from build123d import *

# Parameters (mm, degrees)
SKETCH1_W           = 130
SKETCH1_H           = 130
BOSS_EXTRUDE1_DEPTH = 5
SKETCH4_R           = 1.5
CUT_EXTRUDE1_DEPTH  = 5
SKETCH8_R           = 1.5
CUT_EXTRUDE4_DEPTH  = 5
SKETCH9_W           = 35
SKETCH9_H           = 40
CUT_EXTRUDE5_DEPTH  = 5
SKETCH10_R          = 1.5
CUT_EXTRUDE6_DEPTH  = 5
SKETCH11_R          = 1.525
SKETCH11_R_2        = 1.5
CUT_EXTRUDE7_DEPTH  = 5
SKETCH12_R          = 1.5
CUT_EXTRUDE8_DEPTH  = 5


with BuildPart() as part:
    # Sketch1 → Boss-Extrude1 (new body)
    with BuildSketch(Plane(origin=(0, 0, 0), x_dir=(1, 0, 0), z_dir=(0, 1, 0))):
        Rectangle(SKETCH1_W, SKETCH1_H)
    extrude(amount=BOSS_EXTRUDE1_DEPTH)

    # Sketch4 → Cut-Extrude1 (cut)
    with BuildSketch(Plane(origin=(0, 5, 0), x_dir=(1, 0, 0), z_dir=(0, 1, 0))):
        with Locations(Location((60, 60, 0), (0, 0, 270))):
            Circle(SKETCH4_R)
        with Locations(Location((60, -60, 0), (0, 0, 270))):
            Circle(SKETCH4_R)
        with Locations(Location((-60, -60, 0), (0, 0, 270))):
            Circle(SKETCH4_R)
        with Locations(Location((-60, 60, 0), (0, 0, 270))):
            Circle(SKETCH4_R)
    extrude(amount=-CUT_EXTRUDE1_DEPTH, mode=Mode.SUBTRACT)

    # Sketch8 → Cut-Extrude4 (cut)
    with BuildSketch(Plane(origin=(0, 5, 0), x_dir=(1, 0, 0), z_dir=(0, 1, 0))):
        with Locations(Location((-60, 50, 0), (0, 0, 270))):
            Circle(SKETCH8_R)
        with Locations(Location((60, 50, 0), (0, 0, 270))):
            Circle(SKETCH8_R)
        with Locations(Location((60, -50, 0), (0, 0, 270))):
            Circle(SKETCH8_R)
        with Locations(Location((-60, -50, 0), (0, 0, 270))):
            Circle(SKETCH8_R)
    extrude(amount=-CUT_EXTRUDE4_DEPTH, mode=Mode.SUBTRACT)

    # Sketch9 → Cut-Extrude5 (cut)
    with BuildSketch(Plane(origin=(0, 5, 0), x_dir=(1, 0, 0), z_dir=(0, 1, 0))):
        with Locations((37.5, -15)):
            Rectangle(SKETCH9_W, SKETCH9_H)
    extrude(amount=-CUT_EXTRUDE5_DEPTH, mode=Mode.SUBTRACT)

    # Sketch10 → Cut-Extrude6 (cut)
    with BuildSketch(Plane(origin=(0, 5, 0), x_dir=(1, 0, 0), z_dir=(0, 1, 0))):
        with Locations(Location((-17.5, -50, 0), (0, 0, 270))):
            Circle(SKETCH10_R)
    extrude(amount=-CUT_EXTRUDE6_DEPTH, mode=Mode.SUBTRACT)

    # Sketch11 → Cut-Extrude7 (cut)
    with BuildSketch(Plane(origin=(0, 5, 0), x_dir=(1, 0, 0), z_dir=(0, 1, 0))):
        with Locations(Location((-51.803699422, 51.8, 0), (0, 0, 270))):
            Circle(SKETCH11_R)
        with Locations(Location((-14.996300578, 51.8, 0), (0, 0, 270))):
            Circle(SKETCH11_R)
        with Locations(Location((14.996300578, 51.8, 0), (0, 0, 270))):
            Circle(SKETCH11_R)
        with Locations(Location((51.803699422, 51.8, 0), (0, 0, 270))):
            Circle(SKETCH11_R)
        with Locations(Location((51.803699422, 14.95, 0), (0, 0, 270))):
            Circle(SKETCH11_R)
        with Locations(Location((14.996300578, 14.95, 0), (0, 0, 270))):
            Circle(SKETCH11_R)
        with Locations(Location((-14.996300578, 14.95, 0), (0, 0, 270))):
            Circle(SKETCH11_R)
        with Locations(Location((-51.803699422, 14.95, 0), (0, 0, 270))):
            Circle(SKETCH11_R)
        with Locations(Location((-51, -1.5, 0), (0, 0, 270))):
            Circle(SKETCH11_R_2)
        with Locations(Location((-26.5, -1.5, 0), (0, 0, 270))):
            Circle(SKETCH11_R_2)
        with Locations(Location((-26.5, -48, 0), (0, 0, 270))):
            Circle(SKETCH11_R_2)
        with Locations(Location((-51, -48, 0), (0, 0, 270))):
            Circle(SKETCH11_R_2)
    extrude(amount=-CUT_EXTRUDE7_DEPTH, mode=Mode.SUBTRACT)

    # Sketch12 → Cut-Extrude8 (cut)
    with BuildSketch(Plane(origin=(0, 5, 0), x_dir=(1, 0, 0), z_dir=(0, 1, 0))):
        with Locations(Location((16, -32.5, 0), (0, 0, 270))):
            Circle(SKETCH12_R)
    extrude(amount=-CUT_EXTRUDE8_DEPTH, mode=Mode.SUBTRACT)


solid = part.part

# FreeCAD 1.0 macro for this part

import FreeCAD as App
import Part
import Sketcher


def add_polygon(sketch, points):
    """Adds a closed chain of lines whose ends are joined by coincident constraints."""
    first, n = sketch.GeometryCount, len(points)
    for a, b in zip(points, points[1:] + points[:1]):
        sketch.addGeometry(Part.LineSegment(App.Vector(*a, 0), App.Vector(*b, 0)), False)
    for i in range(n):
        sketch.addConstraint(Sketcher.Constraint("Coincident", first + i, 2, first + (i + 1) % n, 1))

doc = App.newDocument("Part")
body = doc.addObject("PartDesign::Body", "Body")

# Sketch on XZ plane
sketch1 = body.newObject("Sketcher::SketchObject", "Sketch")
sketch1.AttachmentSupport = (doc.getObject("XZ_Plane"), [""])
sketch1.MapMode = "FlatFace"
add_polygon(sketch1, [(-65, -65), (-65, 65), (65, 65), (65, -65)])  # lines 0-3
sketch1.addConstraint([
    Sketcher.Constraint("Vertical", 0),
    Sketcher.Constraint("Horizontal", 1),
    Sketcher.Constraint("Vertical", 2),
    Sketcher.Constraint("Horizontal", 3),
    Sketcher.Constraint("Symmetric", 0, 2, 2, 2, -1, 1),
    Sketcher.Constraint("Equal", 3, 0),
    Sketcher.Constraint("DistanceX", 1, 1, 1, 2, 130.0),
])
pad1 = body.newObject("PartDesign::Pad", "Pad")
pad1.Profile = sketch1
pad1.Length = 5
pad1.Reversed = True

# Sketch on XZ plane
sketch2 = body.newObject("Sketcher::SketchObject", "Sketch001")
sketch2.AttachmentSupport = (doc.getObject("XZ_Plane"), [""])
sketch2.MapMode = "FlatFace"
sketch2.AttachmentOffset = App.Placement(App.Vector(0, 0, -5), App.Rotation())
sketch2.addGeometry([
    Part.Circle(App.Vector(60, -60, 0), App.Vector(0, 0, 1), 1.5),
    Part.Circle(App.Vector(60, 60, 0), App.Vector(0, 0, 1), 1.5),
    Part.Circle(App.Vector(-60, 60, 0), App.Vector(0, 0, 1), 1.5),
    Part.Circle(App.Vector(-60, -60, 0), App.Vector(0, 0, 1), 1.5),
], False)
sketch2.addConstraint([
    Sketcher.Constraint("Equal", 0, 1),
    Sketcher.Constraint("Equal", 1, 2),
    Sketcher.Constraint("Equal", 2, 3),
    Sketcher.Constraint("Symmetric", 0, 3, 2, 3, -1, 1),
    Sketcher.Constraint("Symmetric", 1, 3, 3, 3, -1, 1),
    Sketcher.Constraint("Symmetric", 1, 3, 2, 3, -2),
    Sketcher.Constraint("Diameter", 0, 3.0),
    Sketcher.Constraint("DistanceX", -1, 1, 0, 3, 60.0),
    Sketcher.Constraint("DistanceY", 0, 3, -1, 1, 60.0),
])
pocket1 = body.newObject("PartDesign::Pocket", "Pocket")
pocket1.Profile = sketch2
pocket1.Length = 5
pocket1.Reversed = True

# Sketch on XZ plane
sketch3 = body.newObject("Sketcher::SketchObject", "Sketch002")
sketch3.AttachmentSupport = (doc.getObject("XZ_Plane"), [""])
sketch3.MapMode = "FlatFace"
sketch3.AttachmentOffset = App.Placement(App.Vector(0, 0, -5), App.Rotation())
sketch3.addGeometry([
    Part.Circle(App.Vector(-60, -50, 0), App.Vector(0, 0, 1), 1.5),
    Part.Circle(App.Vector(60, -50, 0), App.Vector(0, 0, 1), 1.5),
    Part.Circle(App.Vector(60, 50, 0), App.Vector(0, 0, 1), 1.5),
    Part.Circle(App.Vector(-60, 50, 0), App.Vector(0, 0, 1), 1.5),
], False)
sketch3.addConstraint([
    Sketcher.Constraint("Equal", 0, 1),
    Sketcher.Constraint("Equal", 1, 2),
    Sketcher.Constraint("Equal", 2, 3),
    Sketcher.Constraint("Symmetric", 0, 3, 2, 3, -1, 1),
    Sketcher.Constraint("Symmetric", 1, 3, 3, 3, -1, 1),
    Sketcher.Constraint("Symmetric", 0, 3, 1, 3, -2),
    Sketcher.Constraint("Diameter", 0, 3.0),
    Sketcher.Constraint("DistanceX", 0, 3, -1, 1, 60.0),
    Sketcher.Constraint("DistanceY", 0, 3, -1, 1, 50.0),
])
pocket2 = body.newObject("PartDesign::Pocket", "Pocket001")
pocket2.Profile = sketch3
pocket2.Length = 5
pocket2.Reversed = True

# Sketch on XZ plane
sketch4 = body.newObject("Sketcher::SketchObject", "Sketch003")
sketch4.AttachmentSupport = (doc.getObject("XZ_Plane"), [""])
sketch4.MapMode = "FlatFace"
sketch4.AttachmentOffset = App.Placement(App.Vector(0, 0, -5), App.Rotation())
add_polygon(sketch4, [(20, -5), (20, 35), (55, 35), (55, -5)])  # lines 0-3
sketch4.addConstraint([
    Sketcher.Constraint("Vertical", 0),
    Sketcher.Constraint("Horizontal", 1),
    Sketcher.Constraint("Vertical", 2),
    Sketcher.Constraint("Horizontal", 3),
    Sketcher.Constraint("DistanceX", 1, 1, 1, 2, 35.0),
    Sketcher.Constraint("DistanceY", 0, 1, 0, 2, 40.0),
    Sketcher.Constraint("DistanceX", -1, 1, 0, 2, 20.0),
    Sketcher.Constraint("DistanceY", -1, 1, 0, 2, 35.0),
])
pocket3 = body.newObject("PartDesign::Pocket", "Pocket002")
pocket3.Profile = sketch4
pocket3.Length = 5
pocket3.Reversed = True

# Sketch on XZ plane
sketch5 = body.newObject("Sketcher::SketchObject", "Sketch004")
sketch5.AttachmentSupport = (doc.getObject("XZ_Plane"), [""])
sketch5.MapMode = "FlatFace"
sketch5.AttachmentOffset = App.Placement(App.Vector(0, 0, -5), App.Rotation())
sketch5.addGeometry(Part.Circle(App.Vector(-17.5, 50, 0), App.Vector(0, 0, 1), 1.5), False)
sketch5.addConstraint([
    Sketcher.Constraint("Diameter", 0, 3.0),
    Sketcher.Constraint("DistanceY", -1, 1, 0, 3, 50.0),
    Sketcher.Constraint("DistanceX", 0, 3, -1, 1, 17.5),
])
pocket4 = body.newObject("PartDesign::Pocket", "Pocket003")
pocket4.Profile = sketch5
pocket4.Length = 5
pocket4.Reversed = True

# Sketch on XZ plane
sketch6 = body.newObject("Sketcher::SketchObject", "Sketch005")
sketch6.AttachmentSupport = (doc.getObject("XZ_Plane"), [""])
sketch6.MapMode = "FlatFace"
sketch6.AttachmentOffset = App.Placement(App.Vector(0, 0, -5), App.Rotation())
sketch6.addGeometry([
    Part.Circle(App.Vector(-51.8, -51.8, 0), App.Vector(0, 0, 1), 1.5),  # 0
    Part.Circle(App.Vector(-15, -51.8, 0), App.Vector(0, 0, 1), 1.5),  # 1
    Part.Circle(App.Vector(15, -51.8, 0), App.Vector(0, 0, 1), 1.5),  # 2
    Part.Circle(App.Vector(51.8, -51.8, 0), App.Vector(0, 0, 1), 1.5),  # 3
    Part.Circle(App.Vector(51.8, -14.9, 0), App.Vector(0, 0, 1), 1.5),  # 4
    Part.Circle(App.Vector(15, -14.9, 0), App.Vector(0, 0, 1), 1.5),  # 5
    Part.Circle(App.Vector(-15, -14.9, 0), App.Vector(0, 0, 1), 1.5),  # 6
    Part.Circle(App.Vector(-51.8, -14.9, 0), App.Vector(0, 0, 1), 1.5),  # 7
    Part.Circle(App.Vector(-51, 1.5, 0), App.Vector(0, 0, 1), 1.5),  # 8
    Part.Circle(App.Vector(-26.5, 1.5, 0), App.Vector(0, 0, 1), 1.5),  # 9
    Part.Circle(App.Vector(-26.5, 48, 0), App.Vector(0, 0, 1), 1.5),  # 10
    Part.Circle(App.Vector(-51, 48, 0), App.Vector(0, 0, 1), 1.5),  # 11
], False)
sketch6.addConstraint([
    Sketcher.Constraint("Equal", 0, 1),
    Sketcher.Constraint("Equal", 1, 2),
    Sketcher.Constraint("Equal", 2, 3),
    Sketcher.Constraint("Equal", 3, 4),
    Sketcher.Constraint("Equal", 4, 5),
    Sketcher.Constraint("Equal", 5, 6),
    Sketcher.Constraint("Equal", 6, 7),
    Sketcher.Constraint("Equal", 8, 9),
    Sketcher.Constraint("Equal", 9, 10),
    Sketcher.Constraint("Equal", 10, 11),
    Sketcher.Constraint("Symmetric", 1, 3, 2, 3, -2),
    Sketcher.Constraint("Symmetric", 0, 3, 3, 3, -2),
    Sketcher.Constraint("Symmetric", 5, 3, 6, 3, -2),
    Sketcher.Constraint("Symmetric", 4, 3, 7, 3, -2),
    Sketcher.Constraint("Horizontal", 0, 3, 1, 3),
    Sketcher.Constraint("Horizontal", 4, 3, 5, 3),
    Sketcher.Constraint("Horizontal", 8, 3, 9, 3),
    Sketcher.Constraint("Horizontal", 10, 3, 11, 3),
    Sketcher.Constraint("Vertical", 3, 3, 4, 3),
    Sketcher.Constraint("Vertical", 2, 3, 5, 3),
    Sketcher.Constraint("Vertical", 9, 3, 10, 3),
    Sketcher.Constraint("Vertical", 8, 3, 11, 3),
    Sketcher.Constraint("Diameter", 8, 3.0),
    Sketcher.Constraint("Diameter", 0, 3.05),
    Sketcher.Constraint("DistanceX", 8, 3, -1, 1, 51.0),
    Sketcher.Constraint("DistanceY", -1, 1, 10, 3, 48.0),
    Sketcher.Constraint("DistanceY", 0, 3, -1, 1, 51.8),
    Sketcher.Constraint("DistanceY", -1, 1, 8, 3, 1.5),
    Sketcher.Constraint("DistanceX", 9, 3, -1, 1, 26.5),
    Sketcher.Constraint("DistanceX", 0, 3, 2, 3, 66.8),
    Sketcher.Constraint("DistanceY", 4, 3, -1, 1, 14.95),
    Sketcher.Constraint("DistanceX", 0, 3, -1, 1, 51.803699),
])
pocket5 = body.newObject("PartDesign::Pocket", "Pocket004")
pocket5.Profile = sketch6
pocket5.Length = 5
pocket5.Reversed = True

# Sketch on XZ plane
sketch7 = body.newObject("Sketcher::SketchObject", "Sketch006")
sketch7.AttachmentSupport = (doc.getObject("XZ_Plane"), [""])
sketch7.MapMode = "FlatFace"
sketch7.AttachmentOffset = App.Placement(App.Vector(0, 0, -5), App.Rotation())
sketch7.addGeometry(Part.Circle(App.Vector(16, 32.5, 0), App.Vector(0, 0, 1), 1.5), False)
sketch7.addConstraint([
    Sketcher.Constraint("Diameter", 0, 3.0),
    Sketcher.Constraint("DistanceX", -1, 1, 0, 3, 16.0),
    Sketcher.Constraint("DistanceY", -1, 1, 0, 3, 32.5),
])
pocket6 = body.newObject("PartDesign::Pocket", "Pocket005")
pocket6.Profile = sketch7
pocket6.Length = 5
pocket6.Reversed = True

doc.recompute()
